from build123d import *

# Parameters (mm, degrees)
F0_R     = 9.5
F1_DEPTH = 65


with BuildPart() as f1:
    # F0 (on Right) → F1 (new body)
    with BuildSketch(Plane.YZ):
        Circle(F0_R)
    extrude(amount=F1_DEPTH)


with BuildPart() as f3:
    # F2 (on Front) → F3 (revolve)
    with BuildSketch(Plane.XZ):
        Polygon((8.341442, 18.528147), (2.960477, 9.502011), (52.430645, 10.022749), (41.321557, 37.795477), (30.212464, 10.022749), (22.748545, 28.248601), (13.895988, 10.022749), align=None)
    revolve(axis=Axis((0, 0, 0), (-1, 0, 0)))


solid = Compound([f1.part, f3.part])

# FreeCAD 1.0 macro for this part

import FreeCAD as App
import Part
import Sketcher
from FreeCAD import Vector


def add_polygon(sketch, points):
    """Adds a closed chain of lines whose ends are joined by coincident constraints."""
    first, n = sketch.GeometryCount, len(points)
    for a, b in zip(points, points[1:] + points[:1]):
        sketch.addGeometry(Part.LineSegment(App.Vector(*a, 0), App.Vector(*b, 0)), False)
    for i in range(n):
        sketch.addConstraint(Sketcher.Constraint("Coincident", first + i, 2, first + (i + 1) % n, 1))

doc = App.newDocument("Part")
body = doc.addObject("PartDesign::Body", "Body")

# Sketch on YZ plane
sketch1 = body.newObject("Sketcher::SketchObject", "Sketch")
sketch1.AttachmentSupport = (doc.getObject("YZ_Plane"), [""])
sketch1.MapMode = "FlatFace"
sketch1.addGeometry(Part.Circle(Vector(0, 0, 0), Vector(0, 0, 1), 10), False)
sketch1.addConstraint([
    Sketcher.Constraint("Coincident", 0, 3, -1, 1),
    Sketcher.Constraint("Diameter", 0, 19.0),
])
pad1 = body.newObject("PartDesign::Pad", "Pad")
pad1.Profile = sketch1
pad1.Length = 65
body2 = doc.addObject("PartDesign::Body", "Body001")

# Sketch on XZ plane
sketch2 = body2.newObject("Sketcher::SketchObject", "Sketch001")
sketch2.AttachmentSupport = (doc.getObject("XZ_Plane001"), [""])
sketch2.MapMode = "FlatFace"
add_polygon(sketch2, [(8, 19), (3, 10), (52, 10), (41, 38), (30, 10), (23, 28), (14, 10)])  # lines 0-6
sketch2.addConstraint([
    Sketcher.Constraint("Horizontal", 1, 2, 3, 2),
    Sketcher.Constraint("Horizontal", 3, 2, 5, 2),
    Sketcher.Constraint("Equal", 2, 3),
    Sketcher.Constraint("DistanceY", -1, 1, 4, 2, 28.248601),
    Sketcher.Constraint("DistanceX", 4, 2, 1, 2, 29.6821),
    Sketcher.Constraint("DistanceY", 5, 2, 6, 2, 8.505398),
    Sketcher.Constraint("Distance", 1, 49.472909),
    Sketcher.Constraint("Distance", 4, 19.694968),
    Sketcher.Constraint("Distance", 5, 20.26202),
    Sketcher.Constraint("DistanceY", -1, 1, 0, 2, 9.502011),
    Sketcher.Constraint("DistanceY", -1, 1, 1, 2, 10.022749),
    Sketcher.Constraint("DistanceY", 1, 2, 2, 2, 27.772728),
    Sketcher.Constraint("DistanceX", 6, 2, 3, 2, 21.871022),
    Sketcher.Constraint("DistanceX", -1, 1, 0, 2, 2.960477),
])
revolution = body2.newObject("PartDesign::Revolution", "Revolution")
revolution.Profile = sketch2
revolution.ReferenceAxis = (sketch2, ["H_Axis"])
revolution.Angle = 360

doc.recompute()
